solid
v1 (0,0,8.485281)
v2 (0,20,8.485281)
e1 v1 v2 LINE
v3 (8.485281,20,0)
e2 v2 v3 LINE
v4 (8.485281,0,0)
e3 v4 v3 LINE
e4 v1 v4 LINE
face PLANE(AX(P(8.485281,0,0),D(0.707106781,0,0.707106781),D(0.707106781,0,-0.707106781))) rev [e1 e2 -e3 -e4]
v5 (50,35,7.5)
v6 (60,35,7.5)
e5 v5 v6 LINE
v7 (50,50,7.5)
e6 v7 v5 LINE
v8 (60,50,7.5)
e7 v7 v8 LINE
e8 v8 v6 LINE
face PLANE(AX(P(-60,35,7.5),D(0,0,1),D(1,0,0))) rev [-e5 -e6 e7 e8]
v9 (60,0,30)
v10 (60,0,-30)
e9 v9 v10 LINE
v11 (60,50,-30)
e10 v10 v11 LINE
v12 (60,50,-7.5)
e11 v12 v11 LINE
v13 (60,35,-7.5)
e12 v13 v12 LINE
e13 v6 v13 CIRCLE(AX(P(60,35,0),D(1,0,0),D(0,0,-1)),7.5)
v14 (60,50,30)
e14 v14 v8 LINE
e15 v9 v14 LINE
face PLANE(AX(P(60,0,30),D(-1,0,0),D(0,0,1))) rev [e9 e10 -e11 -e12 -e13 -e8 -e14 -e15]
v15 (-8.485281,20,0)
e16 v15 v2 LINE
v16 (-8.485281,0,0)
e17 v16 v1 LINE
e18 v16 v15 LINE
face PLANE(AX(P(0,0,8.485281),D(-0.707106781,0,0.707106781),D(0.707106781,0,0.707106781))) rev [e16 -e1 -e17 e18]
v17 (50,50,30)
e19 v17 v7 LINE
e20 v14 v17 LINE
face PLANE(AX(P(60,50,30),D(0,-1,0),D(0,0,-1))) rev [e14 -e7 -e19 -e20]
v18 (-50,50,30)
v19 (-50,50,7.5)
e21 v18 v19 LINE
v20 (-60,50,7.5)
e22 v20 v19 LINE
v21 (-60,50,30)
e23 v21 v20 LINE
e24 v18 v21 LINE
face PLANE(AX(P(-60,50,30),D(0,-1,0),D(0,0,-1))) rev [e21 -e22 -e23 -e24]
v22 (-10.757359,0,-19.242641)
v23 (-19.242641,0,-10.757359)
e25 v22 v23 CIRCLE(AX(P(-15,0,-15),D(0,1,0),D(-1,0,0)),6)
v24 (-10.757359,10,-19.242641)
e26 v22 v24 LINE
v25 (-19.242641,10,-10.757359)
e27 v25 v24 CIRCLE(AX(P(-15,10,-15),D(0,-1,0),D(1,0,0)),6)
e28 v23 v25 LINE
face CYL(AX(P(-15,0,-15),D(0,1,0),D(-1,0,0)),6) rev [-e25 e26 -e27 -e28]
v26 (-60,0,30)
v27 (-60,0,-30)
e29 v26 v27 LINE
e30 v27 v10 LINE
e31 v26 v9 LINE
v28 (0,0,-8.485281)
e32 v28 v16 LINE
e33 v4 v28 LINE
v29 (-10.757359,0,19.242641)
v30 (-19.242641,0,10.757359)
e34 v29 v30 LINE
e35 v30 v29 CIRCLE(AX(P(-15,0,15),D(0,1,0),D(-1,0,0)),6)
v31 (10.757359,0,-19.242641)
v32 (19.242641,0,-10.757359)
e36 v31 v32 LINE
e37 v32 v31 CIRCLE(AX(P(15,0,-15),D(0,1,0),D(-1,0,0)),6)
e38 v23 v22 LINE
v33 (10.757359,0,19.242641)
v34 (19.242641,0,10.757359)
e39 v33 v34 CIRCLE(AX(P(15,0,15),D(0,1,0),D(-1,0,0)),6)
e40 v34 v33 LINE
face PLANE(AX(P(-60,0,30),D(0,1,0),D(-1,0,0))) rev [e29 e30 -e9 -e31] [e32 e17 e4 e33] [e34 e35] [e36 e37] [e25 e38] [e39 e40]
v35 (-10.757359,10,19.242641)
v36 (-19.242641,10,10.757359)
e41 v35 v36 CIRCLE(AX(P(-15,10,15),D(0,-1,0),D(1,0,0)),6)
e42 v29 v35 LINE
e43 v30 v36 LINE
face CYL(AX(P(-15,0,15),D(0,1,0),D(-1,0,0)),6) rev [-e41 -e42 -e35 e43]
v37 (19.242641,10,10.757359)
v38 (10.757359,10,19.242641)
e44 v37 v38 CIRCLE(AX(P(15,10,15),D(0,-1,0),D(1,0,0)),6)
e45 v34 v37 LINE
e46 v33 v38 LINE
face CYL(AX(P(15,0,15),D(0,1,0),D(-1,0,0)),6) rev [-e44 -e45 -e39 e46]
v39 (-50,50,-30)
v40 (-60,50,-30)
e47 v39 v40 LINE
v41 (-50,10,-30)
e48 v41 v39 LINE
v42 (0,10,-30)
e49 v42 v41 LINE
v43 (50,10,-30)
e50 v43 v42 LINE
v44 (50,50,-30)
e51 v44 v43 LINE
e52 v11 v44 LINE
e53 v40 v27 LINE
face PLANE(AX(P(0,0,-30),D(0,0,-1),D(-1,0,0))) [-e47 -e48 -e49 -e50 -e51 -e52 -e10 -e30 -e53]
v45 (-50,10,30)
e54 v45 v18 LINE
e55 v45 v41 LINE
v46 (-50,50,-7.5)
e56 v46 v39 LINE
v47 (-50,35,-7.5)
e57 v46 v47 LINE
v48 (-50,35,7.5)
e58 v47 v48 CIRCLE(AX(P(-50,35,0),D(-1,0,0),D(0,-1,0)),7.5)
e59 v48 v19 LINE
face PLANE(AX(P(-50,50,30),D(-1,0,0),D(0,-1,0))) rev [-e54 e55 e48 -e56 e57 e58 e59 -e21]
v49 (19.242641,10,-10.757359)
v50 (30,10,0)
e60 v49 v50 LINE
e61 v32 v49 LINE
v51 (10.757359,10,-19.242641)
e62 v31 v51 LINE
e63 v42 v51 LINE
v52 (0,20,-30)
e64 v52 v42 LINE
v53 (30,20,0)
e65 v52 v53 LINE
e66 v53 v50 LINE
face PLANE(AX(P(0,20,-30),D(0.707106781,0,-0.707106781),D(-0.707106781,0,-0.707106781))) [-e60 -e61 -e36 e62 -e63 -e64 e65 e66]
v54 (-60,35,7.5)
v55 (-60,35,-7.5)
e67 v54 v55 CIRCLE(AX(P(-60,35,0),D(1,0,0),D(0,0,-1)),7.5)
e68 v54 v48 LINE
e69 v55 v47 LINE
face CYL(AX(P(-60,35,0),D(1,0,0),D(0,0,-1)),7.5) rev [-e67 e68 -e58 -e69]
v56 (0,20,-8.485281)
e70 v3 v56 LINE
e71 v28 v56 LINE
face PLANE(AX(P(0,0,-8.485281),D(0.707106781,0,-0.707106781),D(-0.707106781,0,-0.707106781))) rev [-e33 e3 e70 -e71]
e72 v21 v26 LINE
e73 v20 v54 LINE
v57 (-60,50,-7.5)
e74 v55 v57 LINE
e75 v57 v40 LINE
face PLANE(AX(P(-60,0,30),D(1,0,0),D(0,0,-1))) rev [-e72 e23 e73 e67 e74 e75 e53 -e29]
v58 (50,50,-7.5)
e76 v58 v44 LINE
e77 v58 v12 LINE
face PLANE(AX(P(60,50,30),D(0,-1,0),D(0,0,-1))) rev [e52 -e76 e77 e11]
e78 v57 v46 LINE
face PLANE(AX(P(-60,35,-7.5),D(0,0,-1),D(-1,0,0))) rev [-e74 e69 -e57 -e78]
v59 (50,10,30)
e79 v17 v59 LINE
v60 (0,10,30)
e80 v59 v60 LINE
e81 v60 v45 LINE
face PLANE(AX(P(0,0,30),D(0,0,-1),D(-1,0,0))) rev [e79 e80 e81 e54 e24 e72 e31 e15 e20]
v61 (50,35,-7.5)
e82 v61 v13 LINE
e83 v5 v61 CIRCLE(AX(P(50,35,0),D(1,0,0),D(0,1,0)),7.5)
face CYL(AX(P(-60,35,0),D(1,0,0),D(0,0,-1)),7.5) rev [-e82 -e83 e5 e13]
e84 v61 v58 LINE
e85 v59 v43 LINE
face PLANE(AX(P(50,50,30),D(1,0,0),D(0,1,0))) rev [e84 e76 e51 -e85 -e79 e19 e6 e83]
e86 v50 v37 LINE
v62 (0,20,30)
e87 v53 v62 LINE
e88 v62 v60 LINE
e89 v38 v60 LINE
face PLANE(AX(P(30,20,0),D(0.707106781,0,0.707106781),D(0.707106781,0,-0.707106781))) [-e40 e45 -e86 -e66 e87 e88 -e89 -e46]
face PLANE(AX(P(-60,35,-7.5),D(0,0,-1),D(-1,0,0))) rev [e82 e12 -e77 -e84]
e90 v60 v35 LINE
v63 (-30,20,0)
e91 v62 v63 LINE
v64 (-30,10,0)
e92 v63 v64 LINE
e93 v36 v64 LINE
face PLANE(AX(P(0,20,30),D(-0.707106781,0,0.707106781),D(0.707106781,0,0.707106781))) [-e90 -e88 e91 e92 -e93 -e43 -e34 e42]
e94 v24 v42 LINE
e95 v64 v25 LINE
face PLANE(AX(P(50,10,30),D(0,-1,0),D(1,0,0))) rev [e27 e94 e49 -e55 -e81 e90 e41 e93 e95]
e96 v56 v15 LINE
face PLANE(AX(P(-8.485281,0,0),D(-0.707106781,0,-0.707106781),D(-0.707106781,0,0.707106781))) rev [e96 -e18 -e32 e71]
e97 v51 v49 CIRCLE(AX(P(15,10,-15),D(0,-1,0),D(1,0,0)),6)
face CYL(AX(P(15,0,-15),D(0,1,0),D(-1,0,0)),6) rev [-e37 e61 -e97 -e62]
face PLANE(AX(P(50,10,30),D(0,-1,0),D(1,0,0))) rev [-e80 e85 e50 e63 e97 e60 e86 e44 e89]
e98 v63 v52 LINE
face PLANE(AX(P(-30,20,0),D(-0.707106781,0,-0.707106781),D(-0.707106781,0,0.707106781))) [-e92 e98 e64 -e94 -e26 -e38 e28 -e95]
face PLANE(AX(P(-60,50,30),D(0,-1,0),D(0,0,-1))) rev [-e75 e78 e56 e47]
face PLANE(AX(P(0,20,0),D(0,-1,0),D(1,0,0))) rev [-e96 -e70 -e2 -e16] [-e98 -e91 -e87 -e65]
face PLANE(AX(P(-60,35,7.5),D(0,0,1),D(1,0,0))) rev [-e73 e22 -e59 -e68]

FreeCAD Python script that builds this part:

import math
import FreeCAD as App
import Part
import Sketcher
from FreeCAD import Vector


def add_polygon(sketch, points):
    """Adds a closed chain of lines whose ends are joined by coincident constraints."""
    first, n = sketch.GeometryCount, len(points)
    for a, b in zip(points, points[1:] + points[:1]):
        sketch.addGeometry(Part.LineSegment(App.Vector(*a, 0), App.Vector(*b, 0)), False)
    for i in range(n):
        sketch.addConstraint(Sketcher.Constraint("Coincident", first + i, 2, first + (i + 1) % n, 1))

doc = App.newDocument("Part")
body = doc.addObject("PartDesign::Body", "Body")

# Sketch on XY plane
sketch1 = body.newObject("Sketcher::SketchObject", "Sketch")
sketch1.AttachmentSupport = (doc.getObject("XY_Plane"), [""])
sketch1.MapMode = "FlatFace"
add_polygon(sketch1, [(-60, 0), (60, 0), (60, 50), (50, 50), (50, 10), (-50, 10), (-50, 50), (-60, 50)])  # lines 0-7
sketch1.addConstraint(Sketcher.Constraint("Horizontal", 0))
sketch1.addConstraint(Sketcher.Constraint("Vertical", 1))
sketch1.addConstraint(Sketcher.Constraint("Horizontal", 2))
sketch1.addConstraint(Sketcher.Constraint("Vertical", 3))
sketch1.addConstraint(Sketcher.Constraint("Horizontal", 4))
sketch1.addConstraint(Sketcher.Constraint("Vertical", 5))
sketch1.addConstraint(Sketcher.Constraint("Horizontal", 6))
sketch1.addConstraint(Sketcher.Constraint("Vertical", 7))
sketch1.addConstraint(Sketcher.Constraint("Symmetric", 0, 2, 7, 2, -1, 1))
sketch1.addConstraint(Sketcher.Constraint("Symmetric", 2, 2, 5, 2, -2))
sketch1.addConstraint(Sketcher.Constraint("DistanceX", 0, 1, 0, 2, 120.0))
sketch1.addConstraint(Sketcher.Constraint("DistanceX", 2, 2, 2, 1, 10.0))
sketch1.addConstraint(Sketcher.Constraint("DistanceY", 1, 1, 1, 2, 50.0))
sketch1.addConstraint(Sketcher.Constraint("DistanceY", 3, 2, 3, 1, 40.0))
pad1 = body.newObject("PartDesign::Pad", "Pad")
pad1.Profile = sketch1
pad1.Length = 60
pad1.Midplane = True

# Sketch on YZ plane
sketch2 = body.newObject("Sketcher::SketchObject", "Sketch001")
sketch2.AttachmentSupport = (doc.getObject("YZ_Plane"), [""])
sketch2.MapMode = "FlatFace"
sketch2.AttachmentOffset = App.Placement(Vector(0, 0, 60), App.Rotation())
sketch2.addGeometry(Part.LineSegment(Vector(50, 7.5, 0), Vector(35, 7.5, 0)), False)
sketch2.addGeometry(Part.ArcOfCircle(Part.Circle(Vector(35, 0, 0), Vector(0, 0, 1), 7.5), math.radians(90), math.radians(270)), False)
sketch2.addGeometry(Part.LineSegment(Vector(35, -7.5, 0), Vector(50, -7.5, 0)), False)
sketch2.addGeometry(Part.LineSegment(Vector(50, -7.5, 0), Vector(50, 7.5, 0)), False)
sketch2.addConstraint(Sketcher.Constraint("Tangent", 0, 2, 1, 1))
sketch2.addConstraint(Sketcher.Constraint("Tangent", 1, 2, 2, 1))
sketch2.addConstraint(Sketcher.Constraint("Coincident", 2, 2, 3, 1))
sketch2.addConstraint(Sketcher.Constraint("Coincident", 3, 2, 0, 1))
sketch2.addConstraint(Sketcher.Constraint("Horizontal", 0))
sketch2.addConstraint(Sketcher.Constraint("Horizontal", 2))
sketch2.addConstraint(Sketcher.Constraint("Vertical", 3))
sketch2.addConstraint(Sketcher.Constraint("PointOnObject", 1, 3, -1))
sketch2.addConstraint(Sketcher.Constraint("Equal", 2, 3))
sketch2.addConstraint(Sketcher.Constraint("Radius", 1, 7.5))
sketch2.addConstraint(Sketcher.Constraint("DistanceX", -1, 1, 1, 3, 35.0))
pocket1 = body.newObject("PartDesign::Pocket", "Pocket")
pocket1.Profile = sketch2
pocket1.Type = "ThroughAll"

# Sketch on XZ plane
sketch3 = body.newObject("Sketcher::SketchObject", "Sketch002")
sketch3.AttachmentSupport = (doc.getObject("XZ_Plane"), [""])
sketch3.MapMode = "FlatFace"
sketch3.AttachmentOffset = App.Placement(Vector(0, 0, -10), App.Rotation())
add_polygon(sketch3, [(30, 0), (0, -30), (-30, 0), (0, 30)])  # lines 0-3
sketch3.addConstraint(Sketcher.Constraint("Symmetric", 0, 2, 2, 2, -1, 1))
sketch3.addConstraint(Sketcher.Constraint("Symmetric", 1, 2, 3, 2, -1, 1))
sketch3.addConstraint(Sketcher.Constraint("PointOnObject", 0, 2, -2))
sketch3.addConstraint(Sketcher.Constraint("PointOnObject", 1, 2, -1))
sketch3.addConstraint(Sketcher.Constraint("Perpendicular", 0, 1))
sketch3.addConstraint(Sketcher.Constraint("DistanceY", 0, 2, -1, 1, 30.0))
pad2 = body.newObject("PartDesign::Pad", "Pad001")
pad2.Profile = sketch3
pad2.Length = 10
pad2.Reversed = True

# Sketch on XZ plane
sketch4 = body.newObject("Sketcher::SketchObject", "Sketch003")
sketch4.AttachmentSupport = (doc.getObject("XZ_Plane"), [""])
sketch4.MapMode = "FlatFace"
sketch4.AttachmentOffset = App.Placement(Vector(0, 0, -20), App.Rotation())
add_polygon(sketch4, [(8.485281, 0), (0, -8.485281), (-8.485281, 0), (0, 8.485281)])  # lines 0-3
sketch4.addConstraint(Sketcher.Constraint("Symmetric", 0, 2, 2, 2, -1, 1))
sketch4.addConstraint(Sketcher.Constraint("Symmetric", 1, 2, 3, 2, -1, 1))
sketch4.addConstraint(Sketcher.Constraint("PointOnObject", 0, 2, -2))
sketch4.addConstraint(Sketcher.Constraint("PointOnObject", 1, 2, -1))
sketch4.addConstraint(Sketcher.Constraint("Perpendicular", 0, 1))
sketch4.addConstraint(Sketcher.Constraint("Distance", 0, 12.0))
pocket2 = body.newObject("PartDesign::Pocket", "Pocket001")
pocket2.Profile = sketch4
pocket2.Type = "ThroughAll"
pocket2.Reversed = True

# Sketch on XZ plane
sketch5 = body.newObject("Sketcher::SketchObject", "Sketch004")
sketch5.AttachmentSupport = (doc.getObject("XZ_Plane"), [""])
sketch5.MapMode = "FlatFace"
sketch5.AttachmentOffset = App.Placement(Vector(0, 0, -20), App.Rotation())
sketch5.addGeometry(Part.LineSegment(Vector(10.757359, -19.242641, 0), Vector(19.242641, -10.757359, 0)), False)
sketch5.addGeometry(Part.ArcOfCircle(Part.Circle(Vector(15, -15, 0), Vector(0, 0, 1), 6), math.radians(-135), math.radians(45)), False)
sketch5.addGeometry(Part.LineSegment(Vector(19.242641, 10.757359, 0), Vector(10.757359, 19.242641, 0)), False)
sketch5.addGeometry(Part.ArcOfCircle(Part.Circle(Vector(15, 15, 0), Vector(0, 0, 1), 6), math.radians(-45), math.radians(135)), False)
sketch5.addGeometry(Part.LineSegment(Vector(-10.757359, 19.242641, 0), Vector(-19.242641, 10.757359, 0)), False)
sketch5.addGeometry(Part.ArcOfCircle(Part.Circle(Vector(-15, 15, 0), Vector(0, 0, 1), 6), math.radians(45), math.radians(225)), False)
sketch5.addGeometry(Part.LineSegment(Vector(-19.242641, -10.757359, 0), Vector(-10.757359, -19.242641, 0)), False)
sketch5.addGeometry(Part.ArcOfCircle(Part.Circle(Vector(-15, -15, 0), Vector(0, 0, 1), 6), math.radians(135), math.radians(315)), False)
sketch5.addConstraint(Sketcher.Constraint("Coincident", 0, 1, 1, 1))
sketch5.addConstraint(Sketcher.Constraint("Coincident", 1, 2, 0, 2))
sketch5.addConstraint(Sketcher.Constraint("Coincident", 2, 1, 3, 1))
sketch5.addConstraint(Sketcher.Constraint("Coincident", 3, 2, 2, 2))
sketch5.addConstraint(Sketcher.Constraint("Coincident", 4, 1, 5, 1))
sketch5.addConstraint(Sketcher.Constraint("Coincident", 5, 2, 4, 2))
sketch5.addConstraint(Sketcher.Constraint("Coincident", 6, 1, 7, 1))
sketch5.addConstraint(Sketcher.Constraint("Coincident", 7, 2, 6, 2))
sketch5.addConstraint(Sketcher.Constraint("Equal", 1, 3))
sketch5.addConstraint(Sketcher.Constraint("Equal", 3, 5))
sketch5.addConstraint(Sketcher.Constraint("Equal", 5, 7))
sketch5.addConstraint(Sketcher.Constraint("Symmetric", 1, 3, 5, 3, -1, 1))
sketch5.addConstraint(Sketcher.Constraint("Symmetric", 3, 3, 7, 3, -1, 1))
sketch5.addConstraint(Sketcher.Constraint("Symmetric", 3, 3, 5, 3, -2))
sketch5.addConstraint(Sketcher.Constraint("Perpendicular", 0, 2))
sketch5.addConstraint(Sketcher.Constraint("Perpendicular", 2, 4))
sketch5.addConstraint(Sketcher.Constraint("Perpendicular", 4, 6))
sketch5.addConstraint(Sketcher.Constraint("Horizontal", 3, 2, 4, 1))
sketch5.addConstraint(Sketcher.Constraint("Horizontal", 2, 1, 5, 2))
sketch5.addConstraint(Sketcher.Constraint("Horizontal", 1, 2, 6, 1))
sketch5.addConstraint(Sketcher.Constraint("Vertical", 1, 2, 2, 1))
sketch5.addConstraint(Sketcher.Constraint("Radius", 1, 6.0))
sketch5.addConstraint(Sketcher.Constraint("DistanceX", -1, 1, 1, 3, 15.0))
sketch5.addConstraint(Sketcher.Constraint("DistanceY", 1, 3, -1, 1, 15.0))
sketch5.addConstraint(Sketcher.Constraint("DistanceY", 0, 1, 2, 1, 30.0))
pocket3 = body.newObject("PartDesign::Pocket", "Pocket002")
pocket3.Profile = sketch5
pocket3.Type = "ThroughAll"
pocket3.Reversed = True

doc.recompute()
